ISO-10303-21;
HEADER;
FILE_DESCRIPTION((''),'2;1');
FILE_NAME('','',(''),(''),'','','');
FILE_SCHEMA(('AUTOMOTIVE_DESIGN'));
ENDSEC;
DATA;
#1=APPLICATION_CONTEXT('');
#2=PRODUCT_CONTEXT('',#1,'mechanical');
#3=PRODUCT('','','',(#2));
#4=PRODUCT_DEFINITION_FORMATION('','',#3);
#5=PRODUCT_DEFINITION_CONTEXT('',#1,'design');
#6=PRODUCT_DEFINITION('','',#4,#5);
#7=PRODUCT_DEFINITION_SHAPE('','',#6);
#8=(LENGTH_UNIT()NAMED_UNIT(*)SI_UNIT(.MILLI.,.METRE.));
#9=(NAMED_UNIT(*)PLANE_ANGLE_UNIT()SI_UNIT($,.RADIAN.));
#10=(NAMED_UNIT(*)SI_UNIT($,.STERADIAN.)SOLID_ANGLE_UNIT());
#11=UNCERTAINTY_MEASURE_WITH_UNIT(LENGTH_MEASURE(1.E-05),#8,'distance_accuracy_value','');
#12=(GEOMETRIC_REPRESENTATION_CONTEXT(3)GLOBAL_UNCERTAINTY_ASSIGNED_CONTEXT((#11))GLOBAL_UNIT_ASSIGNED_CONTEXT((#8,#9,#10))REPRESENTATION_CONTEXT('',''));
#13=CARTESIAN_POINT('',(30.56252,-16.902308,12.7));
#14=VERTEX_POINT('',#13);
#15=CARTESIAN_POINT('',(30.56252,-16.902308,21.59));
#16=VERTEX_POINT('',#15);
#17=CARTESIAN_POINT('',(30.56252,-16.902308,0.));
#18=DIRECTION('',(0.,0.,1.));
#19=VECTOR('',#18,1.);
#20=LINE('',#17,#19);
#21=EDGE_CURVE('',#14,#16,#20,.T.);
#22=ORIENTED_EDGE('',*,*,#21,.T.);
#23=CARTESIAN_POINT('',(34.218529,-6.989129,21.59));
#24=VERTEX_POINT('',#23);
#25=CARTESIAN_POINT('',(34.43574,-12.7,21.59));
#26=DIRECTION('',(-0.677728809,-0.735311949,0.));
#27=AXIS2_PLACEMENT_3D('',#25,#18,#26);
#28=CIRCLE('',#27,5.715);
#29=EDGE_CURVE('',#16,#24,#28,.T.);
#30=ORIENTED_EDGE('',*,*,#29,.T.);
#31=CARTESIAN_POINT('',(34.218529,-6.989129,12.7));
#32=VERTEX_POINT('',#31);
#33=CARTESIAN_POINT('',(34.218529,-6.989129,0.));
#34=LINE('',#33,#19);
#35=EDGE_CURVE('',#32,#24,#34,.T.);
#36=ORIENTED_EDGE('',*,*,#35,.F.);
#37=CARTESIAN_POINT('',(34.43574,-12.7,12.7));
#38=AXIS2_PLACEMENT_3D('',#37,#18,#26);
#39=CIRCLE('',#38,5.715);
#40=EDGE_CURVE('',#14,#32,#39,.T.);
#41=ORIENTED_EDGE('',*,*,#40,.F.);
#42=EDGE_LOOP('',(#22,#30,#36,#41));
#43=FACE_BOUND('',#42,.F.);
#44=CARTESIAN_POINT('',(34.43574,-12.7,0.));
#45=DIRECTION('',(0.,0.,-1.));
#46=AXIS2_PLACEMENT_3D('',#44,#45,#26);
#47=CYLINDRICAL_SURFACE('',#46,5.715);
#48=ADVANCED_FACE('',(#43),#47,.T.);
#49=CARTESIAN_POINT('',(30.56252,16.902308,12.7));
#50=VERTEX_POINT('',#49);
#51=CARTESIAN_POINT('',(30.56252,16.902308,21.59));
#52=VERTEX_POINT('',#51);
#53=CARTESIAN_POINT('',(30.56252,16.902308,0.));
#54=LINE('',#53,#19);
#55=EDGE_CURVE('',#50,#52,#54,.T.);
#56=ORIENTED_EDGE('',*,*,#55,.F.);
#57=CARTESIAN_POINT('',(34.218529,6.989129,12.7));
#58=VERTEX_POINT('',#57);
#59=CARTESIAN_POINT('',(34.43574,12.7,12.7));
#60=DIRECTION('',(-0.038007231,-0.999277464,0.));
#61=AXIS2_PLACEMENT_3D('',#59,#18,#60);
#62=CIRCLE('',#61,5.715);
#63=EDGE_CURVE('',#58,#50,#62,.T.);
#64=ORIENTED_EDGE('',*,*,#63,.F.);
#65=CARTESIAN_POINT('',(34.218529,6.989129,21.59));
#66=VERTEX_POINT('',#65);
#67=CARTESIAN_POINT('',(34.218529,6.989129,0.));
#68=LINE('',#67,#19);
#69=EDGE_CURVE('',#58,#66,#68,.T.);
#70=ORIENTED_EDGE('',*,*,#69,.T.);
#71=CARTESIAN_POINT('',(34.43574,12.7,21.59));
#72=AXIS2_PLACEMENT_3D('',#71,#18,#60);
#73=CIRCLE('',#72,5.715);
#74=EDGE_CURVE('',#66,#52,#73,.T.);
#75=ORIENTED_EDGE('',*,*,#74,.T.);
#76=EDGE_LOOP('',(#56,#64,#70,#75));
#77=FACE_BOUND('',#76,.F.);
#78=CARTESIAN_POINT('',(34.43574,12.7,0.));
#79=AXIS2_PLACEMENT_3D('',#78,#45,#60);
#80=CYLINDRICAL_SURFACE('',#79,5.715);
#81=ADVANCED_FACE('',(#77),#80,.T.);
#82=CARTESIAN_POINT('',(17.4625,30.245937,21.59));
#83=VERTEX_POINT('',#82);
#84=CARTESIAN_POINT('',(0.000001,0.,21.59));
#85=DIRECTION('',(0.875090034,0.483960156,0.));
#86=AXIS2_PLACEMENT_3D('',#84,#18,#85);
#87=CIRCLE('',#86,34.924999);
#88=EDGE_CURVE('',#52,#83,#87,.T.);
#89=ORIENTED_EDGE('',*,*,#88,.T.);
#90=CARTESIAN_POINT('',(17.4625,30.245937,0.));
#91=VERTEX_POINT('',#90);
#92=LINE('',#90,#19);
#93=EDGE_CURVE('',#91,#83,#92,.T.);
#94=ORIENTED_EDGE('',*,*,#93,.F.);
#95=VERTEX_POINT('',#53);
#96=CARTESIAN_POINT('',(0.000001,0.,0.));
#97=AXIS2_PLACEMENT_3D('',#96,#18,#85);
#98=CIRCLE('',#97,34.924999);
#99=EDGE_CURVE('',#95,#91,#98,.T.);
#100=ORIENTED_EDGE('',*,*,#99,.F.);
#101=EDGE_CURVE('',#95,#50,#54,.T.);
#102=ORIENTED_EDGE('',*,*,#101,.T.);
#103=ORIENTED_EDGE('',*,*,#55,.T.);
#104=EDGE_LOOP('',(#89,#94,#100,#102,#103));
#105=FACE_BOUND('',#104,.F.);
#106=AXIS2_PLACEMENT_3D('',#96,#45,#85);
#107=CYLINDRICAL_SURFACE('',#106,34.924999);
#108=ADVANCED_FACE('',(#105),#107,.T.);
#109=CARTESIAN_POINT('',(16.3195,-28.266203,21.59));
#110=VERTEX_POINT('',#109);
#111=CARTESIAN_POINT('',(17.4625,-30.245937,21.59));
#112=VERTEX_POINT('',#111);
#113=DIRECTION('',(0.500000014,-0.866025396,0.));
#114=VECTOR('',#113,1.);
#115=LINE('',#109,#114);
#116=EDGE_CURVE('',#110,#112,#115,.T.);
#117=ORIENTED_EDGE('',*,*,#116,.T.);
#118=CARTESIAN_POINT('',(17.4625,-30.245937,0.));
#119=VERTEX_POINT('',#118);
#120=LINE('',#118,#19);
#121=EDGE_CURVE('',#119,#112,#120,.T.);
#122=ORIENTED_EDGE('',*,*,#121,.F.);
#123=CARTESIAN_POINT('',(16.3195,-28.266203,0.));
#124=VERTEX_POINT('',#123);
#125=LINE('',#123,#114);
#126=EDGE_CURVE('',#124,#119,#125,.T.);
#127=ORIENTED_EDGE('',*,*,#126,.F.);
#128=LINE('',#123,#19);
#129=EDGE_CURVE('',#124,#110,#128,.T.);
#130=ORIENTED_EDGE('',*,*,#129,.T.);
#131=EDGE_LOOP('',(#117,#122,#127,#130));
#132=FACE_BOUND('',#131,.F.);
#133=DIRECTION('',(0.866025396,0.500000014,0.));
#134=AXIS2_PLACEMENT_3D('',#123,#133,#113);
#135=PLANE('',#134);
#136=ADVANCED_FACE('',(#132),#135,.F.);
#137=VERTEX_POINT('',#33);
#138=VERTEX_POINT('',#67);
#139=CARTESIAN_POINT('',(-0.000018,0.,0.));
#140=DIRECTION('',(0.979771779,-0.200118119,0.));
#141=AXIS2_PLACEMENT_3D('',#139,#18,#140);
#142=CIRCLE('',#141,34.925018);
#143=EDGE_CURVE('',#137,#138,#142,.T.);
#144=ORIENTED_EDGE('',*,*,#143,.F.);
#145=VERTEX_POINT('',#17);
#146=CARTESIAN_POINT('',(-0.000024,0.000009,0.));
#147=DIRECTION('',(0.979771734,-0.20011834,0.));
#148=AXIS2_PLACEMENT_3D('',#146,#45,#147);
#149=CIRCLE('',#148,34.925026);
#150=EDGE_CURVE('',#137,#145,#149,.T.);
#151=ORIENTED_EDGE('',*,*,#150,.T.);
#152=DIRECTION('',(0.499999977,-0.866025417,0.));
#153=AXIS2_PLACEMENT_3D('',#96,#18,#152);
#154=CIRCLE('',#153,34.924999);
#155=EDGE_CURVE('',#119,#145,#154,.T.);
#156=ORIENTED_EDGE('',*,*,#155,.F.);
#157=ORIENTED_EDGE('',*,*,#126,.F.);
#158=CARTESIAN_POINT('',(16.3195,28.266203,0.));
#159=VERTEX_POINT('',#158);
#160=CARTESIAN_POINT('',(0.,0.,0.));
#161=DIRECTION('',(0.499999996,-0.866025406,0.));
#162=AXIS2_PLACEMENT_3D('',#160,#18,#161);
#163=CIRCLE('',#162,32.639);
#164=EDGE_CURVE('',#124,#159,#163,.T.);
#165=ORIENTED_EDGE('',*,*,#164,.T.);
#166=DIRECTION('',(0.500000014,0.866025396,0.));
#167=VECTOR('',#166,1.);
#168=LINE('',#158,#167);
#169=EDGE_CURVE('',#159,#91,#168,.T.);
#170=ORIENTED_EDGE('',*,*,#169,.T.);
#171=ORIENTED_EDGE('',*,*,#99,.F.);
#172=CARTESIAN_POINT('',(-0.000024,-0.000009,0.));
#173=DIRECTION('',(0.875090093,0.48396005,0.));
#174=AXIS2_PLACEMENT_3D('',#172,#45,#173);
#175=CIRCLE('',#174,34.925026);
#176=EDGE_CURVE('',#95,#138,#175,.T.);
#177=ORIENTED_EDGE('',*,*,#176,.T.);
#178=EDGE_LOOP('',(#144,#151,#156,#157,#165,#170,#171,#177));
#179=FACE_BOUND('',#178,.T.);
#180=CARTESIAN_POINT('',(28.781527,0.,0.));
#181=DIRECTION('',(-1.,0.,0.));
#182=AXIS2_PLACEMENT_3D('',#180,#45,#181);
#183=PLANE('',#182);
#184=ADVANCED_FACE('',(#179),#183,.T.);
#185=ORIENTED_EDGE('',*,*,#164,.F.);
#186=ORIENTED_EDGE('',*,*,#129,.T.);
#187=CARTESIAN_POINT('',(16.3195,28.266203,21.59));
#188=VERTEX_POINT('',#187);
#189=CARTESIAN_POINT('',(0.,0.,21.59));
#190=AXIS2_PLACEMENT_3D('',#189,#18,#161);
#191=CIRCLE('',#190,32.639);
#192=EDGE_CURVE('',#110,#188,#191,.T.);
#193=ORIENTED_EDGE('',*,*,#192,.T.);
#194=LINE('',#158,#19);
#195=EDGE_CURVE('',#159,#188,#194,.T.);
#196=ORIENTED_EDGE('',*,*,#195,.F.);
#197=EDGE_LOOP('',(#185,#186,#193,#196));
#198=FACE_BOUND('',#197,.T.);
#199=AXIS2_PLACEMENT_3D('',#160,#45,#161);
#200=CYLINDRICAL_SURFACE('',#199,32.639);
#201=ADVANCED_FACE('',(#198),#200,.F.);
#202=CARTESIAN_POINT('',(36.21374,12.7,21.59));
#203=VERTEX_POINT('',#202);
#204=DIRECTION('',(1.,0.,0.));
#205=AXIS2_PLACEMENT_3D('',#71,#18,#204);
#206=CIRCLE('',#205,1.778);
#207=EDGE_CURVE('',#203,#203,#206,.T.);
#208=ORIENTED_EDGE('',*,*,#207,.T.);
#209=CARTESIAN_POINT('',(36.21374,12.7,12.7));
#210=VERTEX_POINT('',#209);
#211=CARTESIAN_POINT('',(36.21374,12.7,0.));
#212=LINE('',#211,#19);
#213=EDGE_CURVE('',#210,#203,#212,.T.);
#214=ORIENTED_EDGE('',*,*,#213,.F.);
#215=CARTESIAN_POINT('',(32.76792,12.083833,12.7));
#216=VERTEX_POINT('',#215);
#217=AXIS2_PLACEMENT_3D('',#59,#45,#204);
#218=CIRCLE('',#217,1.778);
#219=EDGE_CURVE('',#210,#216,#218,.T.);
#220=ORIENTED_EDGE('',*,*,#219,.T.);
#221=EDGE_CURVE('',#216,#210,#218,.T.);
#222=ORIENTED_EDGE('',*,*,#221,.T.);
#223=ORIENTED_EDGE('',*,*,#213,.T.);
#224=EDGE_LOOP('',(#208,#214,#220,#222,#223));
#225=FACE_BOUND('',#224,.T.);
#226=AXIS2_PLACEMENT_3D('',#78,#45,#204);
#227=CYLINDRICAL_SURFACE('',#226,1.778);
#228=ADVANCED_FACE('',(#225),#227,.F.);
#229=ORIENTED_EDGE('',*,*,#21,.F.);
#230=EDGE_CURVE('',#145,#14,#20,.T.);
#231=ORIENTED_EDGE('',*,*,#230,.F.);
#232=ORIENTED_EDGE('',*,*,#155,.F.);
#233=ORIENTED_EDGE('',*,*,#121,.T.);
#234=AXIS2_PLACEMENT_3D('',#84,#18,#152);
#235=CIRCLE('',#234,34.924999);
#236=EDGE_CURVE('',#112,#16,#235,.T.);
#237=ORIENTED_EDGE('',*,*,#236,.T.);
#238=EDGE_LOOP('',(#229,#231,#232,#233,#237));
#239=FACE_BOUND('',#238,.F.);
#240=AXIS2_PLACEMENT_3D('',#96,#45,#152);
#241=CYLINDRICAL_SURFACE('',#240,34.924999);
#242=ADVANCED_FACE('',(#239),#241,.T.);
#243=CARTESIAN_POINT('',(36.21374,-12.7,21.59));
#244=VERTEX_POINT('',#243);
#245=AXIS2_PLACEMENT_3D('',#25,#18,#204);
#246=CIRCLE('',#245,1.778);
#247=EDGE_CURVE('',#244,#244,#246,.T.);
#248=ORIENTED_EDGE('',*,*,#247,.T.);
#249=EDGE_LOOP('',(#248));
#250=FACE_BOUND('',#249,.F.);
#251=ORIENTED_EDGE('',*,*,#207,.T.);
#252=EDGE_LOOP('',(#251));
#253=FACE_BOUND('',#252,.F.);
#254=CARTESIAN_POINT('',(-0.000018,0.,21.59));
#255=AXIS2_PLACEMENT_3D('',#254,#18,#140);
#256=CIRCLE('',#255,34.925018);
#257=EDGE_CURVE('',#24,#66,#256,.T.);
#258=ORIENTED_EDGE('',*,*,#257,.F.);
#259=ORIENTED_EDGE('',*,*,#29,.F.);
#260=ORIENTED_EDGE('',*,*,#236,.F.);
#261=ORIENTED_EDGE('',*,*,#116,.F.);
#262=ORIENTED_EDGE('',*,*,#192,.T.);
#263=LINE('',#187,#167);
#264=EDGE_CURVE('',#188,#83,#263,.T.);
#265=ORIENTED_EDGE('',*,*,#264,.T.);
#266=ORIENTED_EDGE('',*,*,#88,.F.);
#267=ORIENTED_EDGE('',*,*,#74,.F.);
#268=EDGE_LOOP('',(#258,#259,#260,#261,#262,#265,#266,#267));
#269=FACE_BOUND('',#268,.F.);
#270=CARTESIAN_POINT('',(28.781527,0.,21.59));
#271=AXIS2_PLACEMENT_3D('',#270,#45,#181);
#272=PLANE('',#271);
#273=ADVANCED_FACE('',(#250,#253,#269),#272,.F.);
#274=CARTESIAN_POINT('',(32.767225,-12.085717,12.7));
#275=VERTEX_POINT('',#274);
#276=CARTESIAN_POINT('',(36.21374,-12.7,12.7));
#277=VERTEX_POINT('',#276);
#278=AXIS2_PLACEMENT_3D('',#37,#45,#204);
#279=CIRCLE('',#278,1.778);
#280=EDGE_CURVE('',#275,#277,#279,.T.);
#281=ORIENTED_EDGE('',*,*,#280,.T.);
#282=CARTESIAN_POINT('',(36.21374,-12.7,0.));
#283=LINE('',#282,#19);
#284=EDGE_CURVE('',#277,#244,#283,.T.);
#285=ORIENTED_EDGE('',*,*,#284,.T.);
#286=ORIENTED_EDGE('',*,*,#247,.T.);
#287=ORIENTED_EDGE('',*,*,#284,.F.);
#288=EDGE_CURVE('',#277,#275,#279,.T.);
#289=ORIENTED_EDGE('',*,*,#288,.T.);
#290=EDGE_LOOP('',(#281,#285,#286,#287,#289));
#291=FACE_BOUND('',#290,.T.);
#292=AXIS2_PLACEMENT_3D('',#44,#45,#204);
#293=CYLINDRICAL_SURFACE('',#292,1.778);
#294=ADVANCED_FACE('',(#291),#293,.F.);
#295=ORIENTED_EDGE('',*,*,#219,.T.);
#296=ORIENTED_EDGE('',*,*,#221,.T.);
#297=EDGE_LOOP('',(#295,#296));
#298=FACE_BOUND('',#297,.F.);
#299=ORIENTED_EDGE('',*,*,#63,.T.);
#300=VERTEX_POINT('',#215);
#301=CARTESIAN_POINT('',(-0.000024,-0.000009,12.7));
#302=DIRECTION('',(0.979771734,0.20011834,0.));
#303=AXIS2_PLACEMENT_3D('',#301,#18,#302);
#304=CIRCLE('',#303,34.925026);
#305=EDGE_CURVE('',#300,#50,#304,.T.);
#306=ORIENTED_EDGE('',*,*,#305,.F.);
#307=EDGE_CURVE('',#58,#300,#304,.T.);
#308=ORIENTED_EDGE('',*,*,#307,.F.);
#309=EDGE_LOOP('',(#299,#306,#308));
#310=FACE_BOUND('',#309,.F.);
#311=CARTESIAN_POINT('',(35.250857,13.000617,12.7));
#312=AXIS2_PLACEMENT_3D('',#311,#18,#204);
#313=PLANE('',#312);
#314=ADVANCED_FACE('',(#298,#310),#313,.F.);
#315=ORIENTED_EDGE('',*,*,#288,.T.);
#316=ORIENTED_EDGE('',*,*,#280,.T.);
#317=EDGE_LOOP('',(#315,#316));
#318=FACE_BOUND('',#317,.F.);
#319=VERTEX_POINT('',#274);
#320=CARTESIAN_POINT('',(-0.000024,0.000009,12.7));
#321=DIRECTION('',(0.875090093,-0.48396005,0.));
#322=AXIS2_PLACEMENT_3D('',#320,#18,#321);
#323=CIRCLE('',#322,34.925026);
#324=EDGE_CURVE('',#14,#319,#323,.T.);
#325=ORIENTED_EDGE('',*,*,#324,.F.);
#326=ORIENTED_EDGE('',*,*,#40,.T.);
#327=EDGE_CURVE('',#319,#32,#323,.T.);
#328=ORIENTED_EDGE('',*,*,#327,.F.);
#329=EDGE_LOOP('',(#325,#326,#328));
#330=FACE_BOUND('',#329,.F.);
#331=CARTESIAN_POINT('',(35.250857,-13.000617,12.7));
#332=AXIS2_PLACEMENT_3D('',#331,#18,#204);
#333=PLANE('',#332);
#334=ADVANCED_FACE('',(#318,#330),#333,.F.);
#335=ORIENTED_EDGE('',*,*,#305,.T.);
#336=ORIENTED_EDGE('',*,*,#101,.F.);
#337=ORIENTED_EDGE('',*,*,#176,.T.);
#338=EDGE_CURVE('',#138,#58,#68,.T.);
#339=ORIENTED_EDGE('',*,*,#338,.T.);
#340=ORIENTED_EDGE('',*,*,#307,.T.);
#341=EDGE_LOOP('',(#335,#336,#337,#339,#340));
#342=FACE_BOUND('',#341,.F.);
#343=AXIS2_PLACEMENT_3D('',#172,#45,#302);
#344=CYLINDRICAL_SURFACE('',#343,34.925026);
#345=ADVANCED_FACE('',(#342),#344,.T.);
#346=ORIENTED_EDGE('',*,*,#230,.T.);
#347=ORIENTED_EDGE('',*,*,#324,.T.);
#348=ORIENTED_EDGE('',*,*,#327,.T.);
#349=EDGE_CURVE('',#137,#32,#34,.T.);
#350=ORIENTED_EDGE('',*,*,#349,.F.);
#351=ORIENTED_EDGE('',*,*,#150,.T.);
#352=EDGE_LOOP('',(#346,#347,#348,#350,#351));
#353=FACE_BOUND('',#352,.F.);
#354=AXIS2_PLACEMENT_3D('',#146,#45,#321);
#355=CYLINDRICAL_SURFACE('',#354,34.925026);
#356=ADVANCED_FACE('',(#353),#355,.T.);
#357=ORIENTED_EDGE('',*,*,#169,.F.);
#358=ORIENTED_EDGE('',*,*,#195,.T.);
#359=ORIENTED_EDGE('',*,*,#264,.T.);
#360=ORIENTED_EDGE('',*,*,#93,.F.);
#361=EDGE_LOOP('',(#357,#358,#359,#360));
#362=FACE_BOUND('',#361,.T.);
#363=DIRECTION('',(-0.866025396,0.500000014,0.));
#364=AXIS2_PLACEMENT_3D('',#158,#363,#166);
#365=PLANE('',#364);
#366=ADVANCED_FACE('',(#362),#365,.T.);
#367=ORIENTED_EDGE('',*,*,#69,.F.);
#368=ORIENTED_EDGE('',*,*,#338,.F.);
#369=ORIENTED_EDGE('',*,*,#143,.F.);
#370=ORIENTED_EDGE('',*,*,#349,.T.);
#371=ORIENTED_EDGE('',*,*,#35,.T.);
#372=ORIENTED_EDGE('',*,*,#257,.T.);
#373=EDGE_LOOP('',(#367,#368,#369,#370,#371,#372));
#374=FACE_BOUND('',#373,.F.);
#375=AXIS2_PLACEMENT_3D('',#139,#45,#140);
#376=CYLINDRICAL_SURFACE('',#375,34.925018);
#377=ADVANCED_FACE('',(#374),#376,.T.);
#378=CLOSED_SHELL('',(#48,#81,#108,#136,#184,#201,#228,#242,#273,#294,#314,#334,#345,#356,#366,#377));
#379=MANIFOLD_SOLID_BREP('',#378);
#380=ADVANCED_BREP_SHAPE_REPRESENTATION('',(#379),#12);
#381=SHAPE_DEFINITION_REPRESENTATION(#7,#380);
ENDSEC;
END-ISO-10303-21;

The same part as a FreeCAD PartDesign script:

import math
import FreeCAD as App
import Part
import Sketcher
Q = App.Units.Quantity

doc = App.newDocument("Part")
params = doc.addObject("Spreadsheet::Sheet", "Params")
for row, (alias, value) in enumerate([
    ("sketch1_diameter", "0.14 in"),
    ("sketch1_radius", "1.285 in"),
    ("sketch1_radius2", "1.375 in"),
    ("sketch1_radius3", "0.225 in"),
    ("pad1_length", "0.85 in"),
    ("sketch2_radius", "0.225 in"),
    ("pocket1_length", "0.5 in"),
], start=1):
    params.set(f"A{row}", alias)
    params.set(f"B{row}", "=" + value)
    params.setAlias(f"B{row}", alias)

body = doc.addObject("PartDesign::Body", "Body")

sketch1 = body.newObject("Sketcher::SketchObject", "Sketch")
sketch1.AttachmentSupport = (doc.getObject("XY_Plane"), [""])
sketch1.MapMode = "FlatFace"
sketch1.addGeometry([
    Part.ArcOfCircle(Part.Circle(App.Vector(0, 0, 0), App.Vector(0, 0, 1), 32.6), math.radians(-60), math.radians(60)),
    Part.LineSegment(App.Vector(16.3, -28.3, 0), App.Vector(17.5, -30.2, 0)),
    Part.ArcOfCircle(Part.Circle(App.Vector(0, 0, 0), App.Vector(0, 0, 1), 34.9), math.radians(-60), math.radians(-29)),
    Part.ArcOfCircle(Part.Circle(App.Vector(34.4, -12.7, 0), App.Vector(0, 0, 1), 5.7), math.radians(-133), math.radians(92)),
    Part.ArcOfCircle(Part.Circle(App.Vector(0, 0, 0), App.Vector(0, 0, 1), 34.9), math.radians(-12), math.radians(12)),
    Part.ArcOfCircle(Part.Circle(App.Vector(34.4, 12.7, 0), App.Vector(0, 0, 1), 5.7), math.radians(-92), math.radians(133)),
    Part.ArcOfCircle(Part.Circle(App.Vector(0, 0, 0), App.Vector(0, 0, 1), 34.9), math.radians(29), math.radians(60)),
    Part.LineSegment(App.Vector(17.5, 30.2, 0), App.Vector(16.3, 28.3, 0)),
    Part.Circle(App.Vector(34.4, -12.7, 0), App.Vector(0, 0, 1), 1.8),
    Part.Circle(App.Vector(34.4, 12.7, 0), App.Vector(0, 0, 1), 1.8),
], False)
sketch1.addConstraint([
    Sketcher.Constraint("Coincident", 0, 1, 1, 1),
    Sketcher.Constraint("Coincident", 1, 2, 2, 1),
    Sketcher.Constraint("Coincident", 2, 2, 3, 1),
    Sketcher.Constraint("Coincident", 3, 2, 4, 1),
    Sketcher.Constraint("Coincident", 4, 2, 5, 1),
    Sketcher.Constraint("Coincident", 5, 2, 6, 1),
    Sketcher.Constraint("Coincident", 6, 2, 7, 1),
    Sketcher.Constraint("Coincident", 7, 2, 0, 2),
    Sketcher.Constraint("Coincident", 0, 3, -1, 1),
    Sketcher.Constraint("Coincident", 2, 3, -1, 1),
    Sketcher.Constraint("Coincident", 6, 3, -1, 1),
    Sketcher.Constraint("Coincident", 8, 3, 3, 3),
    Sketcher.Constraint("Coincident", 9, 3, 5, 3),
    Sketcher.Constraint("Equal", 3, 5),
    Sketcher.Constraint("Equal", 2, 6),
    Sketcher.Constraint("Equal", 8, 9),
    Sketcher.Constraint("Symmetric", 3, 3, 5, 3, -1),
    Sketcher.Constraint("PointOnObject", 4, 3, -1),
    Sketcher.Constraint("Vertical", 1, 2, 6, 2),
    Sketcher.Constraint("Vertical", 0, 1, 7, 2),
    Sketcher.Constraint("Diameter", 8, Q("0.14 in")),
    Sketcher.Constraint("Angle", 1, Q("-59.999999 deg")),
    Sketcher.Constraint("Radius", 0, Q("1.285 in")),
    Sketcher.Constraint("Radius", 2, Q("1.375 in")),
    Sketcher.Constraint("Radius", 3, Q("0.225 in")),
    Sketcher.Constraint("DistanceY", 3, 3, 5, 3, Q("1 in")),
    Sketcher.Constraint("DistanceX", -1, 1, 1, 2, Q("0.6875 in")),
    Sketcher.Constraint("Radius", 4, 34.925018),
    Sketcher.Constraint("DistanceX", -1, 1, 3, 3, 34.43574),
    Sketcher.Constraint("DistanceX", -1, 1, 3, 2, 34.218529),
])
sketch1.setExpression("Constraints[20]", "Params.sketch1_diameter")
sketch1.setExpression("Constraints[22]", "Params.sketch1_radius")
sketch1.setExpression("Constraints[23]", "Params.sketch1_radius2")
sketch1.setExpression("Constraints[24]", "Params.sketch1_radius3")
pad1 = body.newObject("PartDesign::Pad", "Pad")
pad1.Profile = sketch1
pad1.setExpression("Length", "Params.pad1_length")

sketch2 = body.newObject("Sketcher::SketchObject", "Sketch001")
sketch2.AttachmentSupport = (doc.getObject("XY_Plane"), [""])
sketch2.MapMode = "FlatFace"
sketch2.addGeometry([
    Part.ArcOfCircle(Part.Circle(App.Vector(34.43574, 12.7, 0), App.Vector(0, 0, 1), 5.715), math.radians(-92.178179), math.radians(132.666418)),
    Part.ArcOfCircle(Part.Circle(App.Vector(-0.000024, -0.000009, 0), App.Vector(0, 0, 1), 34.925026), math.radians(11.543879), math.radians(28.94436)),
    Part.ArcOfCircle(Part.Circle(App.Vector(34.43574, -12.7, 0), App.Vector(0, 0, 1), 5.715), math.radians(-132.666418), math.radians(92.178179)),
    Part.ArcOfCircle(Part.Circle(App.Vector(-0.000024, 0.000009, 0), App.Vector(0, 0, 1), 34.925026), math.radians(-28.94436), math.radians(-11.543879)),
], False)
sketch2.addConstraint([
    Sketcher.Constraint("Coincident", 0, 1, 1, 1),
    Sketcher.Constraint("Coincident", 1, 2, 0, 2),
    Sketcher.Constraint("Coincident", 2, 1, 3, 1),
    Sketcher.Constraint("Coincident", 3, 2, 2, 2),
    Sketcher.Constraint("Equal", 0, 2),
    Sketcher.Constraint("Equal", 1, 3),
    Sketcher.Constraint("Symmetric", 0, 3, 2, 3, -1),
    Sketcher.Constraint("Symmetric", 1, 3, 3, 3, -1),
    Sketcher.Constraint("Radius", 0, Q("0.225 in")),
    Sketcher.Constraint("DistanceY", 2, 3, 0, 3, Q("1 in")),
    Sketcher.Constraint("Radius", 1, 34.925026),
    Sketcher.Constraint("DistanceY", 3, 3, 1, 2, 16.902299),
    Sketcher.Constraint("DistanceX", -1, 1, 0, 3, 34.43574),
    Sketcher.Constraint("DistanceX", -1, 1, 0, 1, 34.218529),
])
sketch2.setExpression("Constraints[8]", "Params.sketch2_radius")
pocket1 = body.newObject("PartDesign::Pocket", "Pocket")
pocket1.Profile = sketch2
pocket1.setExpression("Length", "Params.pocket1_length")
pocket1.Reversed = True

doc.recompute()
